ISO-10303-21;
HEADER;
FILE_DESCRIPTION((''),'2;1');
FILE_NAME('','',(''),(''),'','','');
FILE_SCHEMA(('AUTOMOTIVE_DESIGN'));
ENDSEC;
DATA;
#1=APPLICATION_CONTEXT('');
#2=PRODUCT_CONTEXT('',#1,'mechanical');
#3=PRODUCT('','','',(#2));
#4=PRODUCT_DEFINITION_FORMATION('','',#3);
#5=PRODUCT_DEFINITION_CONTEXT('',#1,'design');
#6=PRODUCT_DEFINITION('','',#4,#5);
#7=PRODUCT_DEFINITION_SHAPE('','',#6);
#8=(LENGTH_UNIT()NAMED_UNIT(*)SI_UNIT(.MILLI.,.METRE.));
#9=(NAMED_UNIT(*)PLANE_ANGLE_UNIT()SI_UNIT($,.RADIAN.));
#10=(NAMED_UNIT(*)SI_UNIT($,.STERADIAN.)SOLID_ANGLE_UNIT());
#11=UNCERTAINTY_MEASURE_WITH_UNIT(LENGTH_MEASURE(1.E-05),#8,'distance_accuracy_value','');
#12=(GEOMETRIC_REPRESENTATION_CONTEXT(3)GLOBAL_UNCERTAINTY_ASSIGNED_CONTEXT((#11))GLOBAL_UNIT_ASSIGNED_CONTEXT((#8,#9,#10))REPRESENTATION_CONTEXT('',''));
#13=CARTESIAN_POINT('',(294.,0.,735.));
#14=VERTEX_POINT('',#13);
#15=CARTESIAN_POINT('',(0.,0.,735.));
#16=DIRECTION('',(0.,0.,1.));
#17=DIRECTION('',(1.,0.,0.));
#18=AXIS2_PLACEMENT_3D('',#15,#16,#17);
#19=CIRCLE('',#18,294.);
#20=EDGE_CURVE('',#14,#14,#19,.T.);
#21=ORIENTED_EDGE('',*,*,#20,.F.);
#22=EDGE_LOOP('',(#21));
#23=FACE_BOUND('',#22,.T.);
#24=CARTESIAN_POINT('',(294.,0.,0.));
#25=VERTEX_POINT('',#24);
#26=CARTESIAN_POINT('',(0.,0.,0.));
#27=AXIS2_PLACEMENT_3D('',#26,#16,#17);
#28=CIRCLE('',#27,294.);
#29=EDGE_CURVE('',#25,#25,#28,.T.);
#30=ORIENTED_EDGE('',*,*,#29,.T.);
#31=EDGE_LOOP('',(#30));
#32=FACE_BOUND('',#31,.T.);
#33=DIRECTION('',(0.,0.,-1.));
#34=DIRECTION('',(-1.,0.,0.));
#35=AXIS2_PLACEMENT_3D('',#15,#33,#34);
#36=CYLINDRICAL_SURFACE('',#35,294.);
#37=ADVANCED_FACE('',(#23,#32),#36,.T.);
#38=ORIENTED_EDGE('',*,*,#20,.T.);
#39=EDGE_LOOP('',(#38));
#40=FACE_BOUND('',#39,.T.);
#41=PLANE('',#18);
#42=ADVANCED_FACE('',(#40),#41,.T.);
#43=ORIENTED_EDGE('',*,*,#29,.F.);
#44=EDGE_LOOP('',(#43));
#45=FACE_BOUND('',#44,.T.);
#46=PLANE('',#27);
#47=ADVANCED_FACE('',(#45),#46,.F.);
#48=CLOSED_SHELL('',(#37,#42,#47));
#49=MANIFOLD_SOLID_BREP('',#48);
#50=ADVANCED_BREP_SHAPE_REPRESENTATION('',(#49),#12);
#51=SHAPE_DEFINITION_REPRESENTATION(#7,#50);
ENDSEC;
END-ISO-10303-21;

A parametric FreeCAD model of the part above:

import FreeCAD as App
import Part
import Sketcher

V = App.Vector

doc = App.newDocument("Part")
body = doc.addObject("PartDesign::Body", "Body")

# Sketch on XY plane
sketch1 = doc.addObject("Sketcher::SketchObject", "Sketch")
body.addObject(sketch1)
sketch1.AttachmentSupport = (doc.XY_Plane, [""])
sketch1.MapMode = "FlatFace"
sketch1.addGeometry(Part.Circle(V(0, 0, 0), V(0, 0, 1), 294), False)
sketch1.addConstraint([
    Sketcher.Constraint("Coincident", 0, 3, -1, 1),
    Sketcher.Constraint("Diameter", 0, 588.0),
])
pad1 = doc.addObject("PartDesign::Pad", "Pad")
body.addObject(pad1)
pad1.Profile = sketch1
pad1.Length = 735

doc.recompute()
